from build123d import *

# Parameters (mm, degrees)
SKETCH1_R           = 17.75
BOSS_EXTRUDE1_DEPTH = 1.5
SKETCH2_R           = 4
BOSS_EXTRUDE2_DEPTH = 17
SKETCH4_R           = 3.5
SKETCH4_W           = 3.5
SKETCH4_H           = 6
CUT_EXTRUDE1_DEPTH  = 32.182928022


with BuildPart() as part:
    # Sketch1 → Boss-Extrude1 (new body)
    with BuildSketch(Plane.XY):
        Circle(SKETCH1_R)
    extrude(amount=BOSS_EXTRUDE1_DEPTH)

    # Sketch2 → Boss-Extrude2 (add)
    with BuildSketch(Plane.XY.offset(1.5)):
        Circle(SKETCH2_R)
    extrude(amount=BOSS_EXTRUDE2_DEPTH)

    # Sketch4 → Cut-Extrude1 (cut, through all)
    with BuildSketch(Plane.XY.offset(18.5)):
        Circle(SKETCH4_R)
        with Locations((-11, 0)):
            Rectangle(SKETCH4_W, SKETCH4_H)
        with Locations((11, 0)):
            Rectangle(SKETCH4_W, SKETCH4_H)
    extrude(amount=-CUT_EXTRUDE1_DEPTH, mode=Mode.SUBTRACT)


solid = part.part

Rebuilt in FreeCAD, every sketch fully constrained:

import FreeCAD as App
import Part
import Sketcher
from FreeCAD import Vector
Q = App.Units.Quantity

doc = App.newDocument("Part")
params = doc.addObject("Spreadsheet::Sheet", "Params")
for row, (alias, value) in enumerate([
    ("sketch1_diameter", "35.5 mm"),
    ("pad1_length", "1.5 mm"),
    ("sketch2_diameter", "8 mm"),
    ("pad2_length", "17 mm"),
    ("sketch3_diameter", "7 mm"),
    ("sketch3_height", "6 mm"),
    ("sketch3_width", "3.5 mm"),
], start=1):
    params.set(f"A{row}", alias)
    params.set(f"B{row}", "=" + value)
    params.setAlias(f"B{row}", alias)

body = doc.addObject("PartDesign::Body", "Body")

# Sketch on XY plane
sketch1 = doc.addObject("Sketcher::SketchObject", "Sketch")
body.addObject(sketch1)
sketch1.AttachmentSupport = (doc.XY_Plane, [""])
sketch1.MapMode = "FlatFace"
sketch1.addGeometry(Part.Circle(Vector(0, 0, 0), Vector(0, 0, 1), 18), False)
sketch1.addConstraint([
    Sketcher.Constraint("Coincident", 0, 3, -1, 1),
    Sketcher.Constraint("Diameter", 0, Q("35.5 mm")),
])
sketch1.setExpression("Constraints[1]", "Params.sketch1_diameter")
pad1 = doc.addObject("PartDesign::Pad", "Pad")
body.addObject(pad1)
pad1.Profile = sketch1
pad1.setExpression("Length", "Params.pad1_length")

# Sketch on XY plane
sketch2 = doc.addObject("Sketcher::SketchObject", "Sketch001")
body.addObject(sketch2)
sketch2.AttachmentSupport = (doc.XY_Plane, [""])
sketch2.MapMode = "FlatFace"
sketch2.AttachmentOffset = App.Placement(Vector(0, 0, 1.5), App.Rotation())
sketch2.addGeometry(Part.Circle(Vector(0, 0, 0), Vector(0, 0, 1), 4), False)
sketch2.addConstraint([
    Sketcher.Constraint("Coincident", 0, 3, -1, 1),
    Sketcher.Constraint("Diameter", 0, Q("8 mm")),
])
sketch2.setExpression("Constraints[1]", "Params.sketch2_diameter")
pad2 = doc.addObject("PartDesign::Pad", "Pad001")
body.addObject(pad2)
pad2.Profile = sketch2
pad2.setExpression("Length", "Params.pad2_length")

# Sketch on XY plane
sketch3 = doc.addObject("Sketcher::SketchObject", "Sketch002")
body.addObject(sketch3)
sketch3.AttachmentSupport = (doc.XY_Plane, [""])
sketch3.MapMode = "FlatFace"
sketch3.AttachmentOffset = App.Placement(Vector(0, 0, 18.5), App.Rotation())
sketch3.addGeometry([
    Part.Circle(Vector(0, 0, 0), Vector(0, 0, 1), 3.5),  # 0
    Part.LineSegment(Vector(-12.8, 3, 0), Vector(-12.8, -3, 0)),  # 1
    Part.LineSegment(Vector(-12.8, -3, 0), Vector(-9.2, -3, 0)),  # 2
    Part.LineSegment(Vector(-9.2, -3, 0), Vector(-9.2, 3, 0)),  # 3
    Part.LineSegment(Vector(-9.2, 3, 0), Vector(-12.8, 3, 0)),  # 4
    Part.LineSegment(Vector(9.2, 3, 0), Vector(9.2, -3, 0)),  # 5
    Part.LineSegment(Vector(9.2, -3, 0), Vector(12.8, -3, 0)),  # 6
    Part.LineSegment(Vector(12.8, -3, 0), Vector(12.8, 3, 0)),  # 7
    Part.LineSegment(Vector(12.8, 3, 0), Vector(9.2, 3, 0)),  # 8
], False)
sketch3.addConstraint([
    Sketcher.Constraint("Coincident", 1, 2, 2, 1),
    Sketcher.Constraint("Coincident", 2, 2, 3, 1),
    Sketcher.Constraint("Coincident", 3, 2, 4, 1),
    Sketcher.Constraint("Coincident", 4, 2, 1, 1),
    Sketcher.Constraint("Coincident", 5, 2, 6, 1),
    Sketcher.Constraint("Coincident", 6, 2, 7, 1),
    Sketcher.Constraint("Coincident", 7, 2, 8, 1),
    Sketcher.Constraint("Coincident", 8, 2, 5, 1),
    Sketcher.Constraint("Vertical", 1),
    Sketcher.Constraint("Horizontal", 2),
    Sketcher.Constraint("Vertical", 3),
    Sketcher.Constraint("Horizontal", 4),
    Sketcher.Constraint("Vertical", 5),
    Sketcher.Constraint("Horizontal", 6),
    Sketcher.Constraint("Vertical", 7),
    Sketcher.Constraint("Horizontal", 8),
    Sketcher.Constraint("Coincident", 0, 3, -1, 1),
    Sketcher.Constraint("Symmetric", 3, 2, 5, 2, -1, 1),
    Sketcher.Constraint("Symmetric", 1, 2, 7, 2, -1, 1),
    Sketcher.Constraint("Horizontal", 2, 2, 5, 2),
    Sketcher.Constraint("Diameter", 0, Q("7 mm")),
    Sketcher.Constraint("DistanceY", 1, 2, 1, 1, Q("6 mm")),
    Sketcher.Constraint("DistanceX", 2, 1, 2, 2, Q("3.5 mm")),
    Sketcher.Constraint("DistanceX", 1, 2, 5, 2, Q("22 mm")),
])
sketch3.setExpression("Constraints[20]", "Params.sketch3_diameter")
sketch3.setExpression("Constraints[21]", "Params.sketch3_height")
sketch3.setExpression("Constraints[22]", "Params.sketch3_width")
pocket1 = doc.addObject("PartDesign::Pocket", "Pocket")
body.addObject(pocket1)
pocket1.Profile = sketch3
pocket1.Type = "ThroughAll"

doc.recompute()
